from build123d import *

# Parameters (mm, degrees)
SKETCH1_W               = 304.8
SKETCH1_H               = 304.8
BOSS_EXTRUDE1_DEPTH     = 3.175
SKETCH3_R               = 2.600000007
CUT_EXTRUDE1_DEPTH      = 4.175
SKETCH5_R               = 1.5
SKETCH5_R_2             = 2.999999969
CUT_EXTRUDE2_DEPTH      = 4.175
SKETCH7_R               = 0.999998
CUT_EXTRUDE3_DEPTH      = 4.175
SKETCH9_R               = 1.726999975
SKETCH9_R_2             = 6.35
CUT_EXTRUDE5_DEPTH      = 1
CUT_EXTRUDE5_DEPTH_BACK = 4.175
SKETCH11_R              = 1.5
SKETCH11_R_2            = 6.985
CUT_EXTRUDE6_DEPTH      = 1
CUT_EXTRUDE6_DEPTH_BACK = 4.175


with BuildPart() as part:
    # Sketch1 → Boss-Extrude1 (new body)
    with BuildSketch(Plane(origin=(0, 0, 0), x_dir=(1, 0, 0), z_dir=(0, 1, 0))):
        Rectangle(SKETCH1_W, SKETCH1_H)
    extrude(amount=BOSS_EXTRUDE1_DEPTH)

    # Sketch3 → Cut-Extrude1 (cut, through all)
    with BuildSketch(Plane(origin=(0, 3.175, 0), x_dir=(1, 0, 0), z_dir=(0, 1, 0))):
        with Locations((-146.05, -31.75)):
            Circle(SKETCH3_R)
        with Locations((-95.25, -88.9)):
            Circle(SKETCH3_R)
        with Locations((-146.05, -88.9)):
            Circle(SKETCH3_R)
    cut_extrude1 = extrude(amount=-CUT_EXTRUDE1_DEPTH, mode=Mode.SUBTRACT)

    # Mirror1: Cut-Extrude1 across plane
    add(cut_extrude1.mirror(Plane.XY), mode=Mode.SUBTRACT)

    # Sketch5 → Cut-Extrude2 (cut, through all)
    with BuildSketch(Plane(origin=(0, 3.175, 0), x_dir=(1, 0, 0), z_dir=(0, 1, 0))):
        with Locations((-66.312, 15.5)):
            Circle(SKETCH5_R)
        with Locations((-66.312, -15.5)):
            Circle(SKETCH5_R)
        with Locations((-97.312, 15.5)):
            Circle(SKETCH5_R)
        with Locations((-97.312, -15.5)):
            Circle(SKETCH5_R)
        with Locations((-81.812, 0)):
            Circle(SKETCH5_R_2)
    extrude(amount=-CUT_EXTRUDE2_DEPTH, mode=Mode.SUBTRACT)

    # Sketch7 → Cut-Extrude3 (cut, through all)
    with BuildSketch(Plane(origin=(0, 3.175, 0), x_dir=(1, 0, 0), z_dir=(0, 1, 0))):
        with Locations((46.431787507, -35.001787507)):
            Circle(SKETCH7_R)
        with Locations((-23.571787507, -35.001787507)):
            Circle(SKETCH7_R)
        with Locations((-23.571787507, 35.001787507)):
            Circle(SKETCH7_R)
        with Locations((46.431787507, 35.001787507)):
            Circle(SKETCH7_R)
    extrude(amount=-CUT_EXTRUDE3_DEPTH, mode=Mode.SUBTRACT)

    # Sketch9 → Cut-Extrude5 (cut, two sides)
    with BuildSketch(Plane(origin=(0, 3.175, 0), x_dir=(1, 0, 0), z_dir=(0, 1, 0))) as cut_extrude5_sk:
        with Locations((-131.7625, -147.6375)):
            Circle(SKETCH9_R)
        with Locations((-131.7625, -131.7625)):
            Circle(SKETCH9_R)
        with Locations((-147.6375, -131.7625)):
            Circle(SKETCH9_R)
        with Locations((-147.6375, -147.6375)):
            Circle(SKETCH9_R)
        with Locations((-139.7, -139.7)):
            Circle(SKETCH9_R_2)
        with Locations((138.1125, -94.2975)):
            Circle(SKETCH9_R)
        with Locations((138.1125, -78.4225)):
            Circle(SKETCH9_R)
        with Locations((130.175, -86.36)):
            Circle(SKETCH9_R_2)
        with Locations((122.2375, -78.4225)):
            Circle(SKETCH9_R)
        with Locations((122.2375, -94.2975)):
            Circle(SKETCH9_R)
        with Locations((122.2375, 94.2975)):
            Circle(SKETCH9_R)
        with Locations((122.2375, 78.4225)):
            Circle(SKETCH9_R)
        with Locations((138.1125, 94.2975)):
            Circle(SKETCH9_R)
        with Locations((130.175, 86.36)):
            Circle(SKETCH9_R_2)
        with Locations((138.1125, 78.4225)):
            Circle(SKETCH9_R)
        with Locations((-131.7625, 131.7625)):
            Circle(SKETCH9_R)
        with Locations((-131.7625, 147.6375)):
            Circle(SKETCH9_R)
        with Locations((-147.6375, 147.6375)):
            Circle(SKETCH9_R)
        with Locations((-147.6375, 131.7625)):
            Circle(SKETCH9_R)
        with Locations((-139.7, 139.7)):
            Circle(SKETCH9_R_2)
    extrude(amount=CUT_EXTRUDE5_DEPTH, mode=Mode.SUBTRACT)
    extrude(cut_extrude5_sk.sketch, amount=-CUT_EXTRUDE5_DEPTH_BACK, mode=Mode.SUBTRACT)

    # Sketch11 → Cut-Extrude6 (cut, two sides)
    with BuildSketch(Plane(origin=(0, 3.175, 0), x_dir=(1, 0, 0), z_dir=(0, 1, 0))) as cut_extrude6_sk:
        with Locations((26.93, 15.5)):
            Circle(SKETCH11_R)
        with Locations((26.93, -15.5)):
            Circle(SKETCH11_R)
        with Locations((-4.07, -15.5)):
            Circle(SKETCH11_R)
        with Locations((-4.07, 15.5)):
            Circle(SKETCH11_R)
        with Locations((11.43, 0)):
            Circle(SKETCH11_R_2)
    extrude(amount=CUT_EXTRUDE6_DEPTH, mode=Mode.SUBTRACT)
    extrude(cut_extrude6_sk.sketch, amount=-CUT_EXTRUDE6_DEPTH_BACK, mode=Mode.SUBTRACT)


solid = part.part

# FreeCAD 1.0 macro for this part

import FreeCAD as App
import Part
import Sketcher
from FreeCAD import Vector

doc = App.newDocument("Part")
params = doc.addObject("Spreadsheet::Sheet", "Params")
for row, (alias, value) in enumerate([
    ("sketch1_width", "304.8 mm"),
    ("pad1_length", "3.175 mm"),
    ("sketch2_diameter", "5.2 mm"),
    ("sketch3_diameter", "3 mm"),
    ("sketch3_diameter2", "6 mm"),
    ("sketch5_diameter", "12.7 mm"),
    ("sketch6_diameter", "3 mm"),
    ("sketch6_diameter2", "13.97 mm"),
], start=1):
    params.set(f"A{row}", alias)
    params.set(f"B{row}", "=" + value)
    params.setAlias(f"B{row}", alias)

body = doc.addObject("PartDesign::Body", "Body")

# Sketch on XZ plane
sketch1 = doc.addObject("Sketcher::SketchObject", "Sketch")
body.addObject(sketch1)
sketch1.AttachmentSupport = (doc.XZ_Plane, [""])
sketch1.MapMode = "FlatFace"
sketch1.addGeometry(Part.LineSegment(Vector(-152, -152, 0), Vector(-152, 152, 0)), False)
sketch1.addGeometry(Part.LineSegment(Vector(-152, 152, 0), Vector(152, 152, 0)), False)
sketch1.addGeometry(Part.LineSegment(Vector(152, 152, 0), Vector(152, -152, 0)), False)
sketch1.addGeometry(Part.LineSegment(Vector(152, -152, 0), Vector(-152, -152, 0)), False)
sketch1.addConstraint(Sketcher.Constraint("Coincident", 0, 2, 1, 1))
sketch1.addConstraint(Sketcher.Constraint("Coincident", 1, 2, 2, 1))
sketch1.addConstraint(Sketcher.Constraint("Coincident", 2, 2, 3, 1))
sketch1.addConstraint(Sketcher.Constraint("Coincident", 3, 2, 0, 1))
sketch1.addConstraint(Sketcher.Constraint("Vertical", 0))
sketch1.addConstraint(Sketcher.Constraint("Horizontal", 1))
sketch1.addConstraint(Sketcher.Constraint("Vertical", 2))
sketch1.addConstraint(Sketcher.Constraint("Horizontal", 3))
sketch1.addConstraint(Sketcher.Constraint("Symmetric", 0, 2, 2, 2, -1, 1))
sketch1.addConstraint(Sketcher.Constraint("Equal", 3, 0))
sketch1.addConstraint(Sketcher.Constraint("DistanceX", 1, 1, 1, 2, 304.8))
sketch1.setExpression("Constraints[10]", "Params.sketch1_width")
pad1 = doc.addObject("PartDesign::Pad", "Pad")
body.addObject(pad1)
pad1.Profile = sketch1
pad1.setExpression("Length", "Params.pad1_length")
pad1.Reversed = True

# Sketch on XZ plane
sketch2 = doc.addObject("Sketcher::SketchObject", "Sketch001")
body.addObject(sketch2)
sketch2.AttachmentSupport = (doc.XZ_Plane, [""])
sketch2.MapMode = "FlatFace"
sketch2.AttachmentOffset = App.Placement(Vector(0, 0, -3.175), App.Rotation())
sketch2.addGeometry(Part.Circle(Vector(-146.1, 31.8, 0), Vector(0, 0, 1), 2.6), False)
sketch2.addGeometry(Part.Circle(Vector(-95.2, 88.9, 0), Vector(0, 0, 1), 2.6), False)
sketch2.addGeometry(Part.Circle(Vector(-146.1, 88.9, 0), Vector(0, 0, 1), 2.6), False)
sketch2.addConstraint(Sketcher.Constraint("Equal", 0, 1))
sketch2.addConstraint(Sketcher.Constraint("Equal", 1, 2))
sketch2.addConstraint(Sketcher.Constraint("Horizontal", 1, 3, 2, 3))
sketch2.addConstraint(Sketcher.Constraint("Vertical", 0, 3, 2, 3))
sketch2.addConstraint(Sketcher.Constraint("Diameter", 0, 5.2))
sketch2.addConstraint(Sketcher.Constraint("DistanceY", -1, 1, 1, 3, 88.9))
sketch2.addConstraint(Sketcher.Constraint("DistanceX", 0, 3, 1, 3, 50.8))
sketch2.addConstraint(Sketcher.Constraint("DistanceX", 0, 3, -1, 1, 146.05))
sketch2.addConstraint(Sketcher.Constraint("DistanceY", -1, 1, 0, 3, 31.75))
sketch2.setExpression("Constraints[4]", "Params.sketch2_diameter")
pocket1 = doc.addObject("PartDesign::Pocket", "Pocket")
body.addObject(pocket1)
pocket1.Profile = sketch2
pocket1.Type = "ThroughAll"
pocket1.Reversed = True
doc.recompute()

mirrored = doc.addObject("PartDesign::Mirrored", "Mirrored")
body.addObject(mirrored)
mirrored.Originals = [pocket1]
mirrored.MirrorPlane = (doc.XY_Plane, [""])
body.Tip = mirrored

# Sketch on XZ plane
sketch3 = doc.addObject("Sketcher::SketchObject", "Sketch002")
body.addObject(sketch3)
sketch3.AttachmentSupport = (doc.XZ_Plane, [""])
sketch3.MapMode = "FlatFace"
sketch3.AttachmentOffset = App.Placement(Vector(0, 0, -3.175), App.Rotation())
sketch3.addGeometry(Part.Circle(Vector(-66.3, -15.5, 0), Vector(0, 0, 1), 1.5), False)
sketch3.addGeometry(Part.Circle(Vector(-66.3, 15.5, 0), Vector(0, 0, 1), 1.5), False)
sketch3.addGeometry(Part.Circle(Vector(-97.3, -15.5, 0), Vector(0, 0, 1), 1.5), False)
sketch3.addGeometry(Part.Circle(Vector(-97.3, 15.5, 0), Vector(0, 0, 1), 1.5), False)
sketch3.addGeometry(Part.Circle(Vector(-81.8, 0, 0), Vector(0, 0, 1), 3), False)
sketch3.addConstraint(Sketcher.Constraint("Equal", 0, 1))
sketch3.addConstraint(Sketcher.Constraint("Equal", 1, 2))
sketch3.addConstraint(Sketcher.Constraint("Equal", 2, 3))
sketch3.addConstraint(Sketcher.Constraint("Symmetric", 0, 3, 1, 3, -1))
sketch3.addConstraint(Sketcher.Constraint("Symmetric", 2, 3, 3, 3, -1))
sketch3.addConstraint(Sketcher.Constraint("PointOnObject", 4, 3, -1))
sketch3.addConstraint(Sketcher.Constraint("Horizontal", 0, 3, 2, 3))
sketch3.addConstraint(Sketcher.Constraint("Diameter", 0, 3.0))
sketch3.addConstraint(Sketcher.Constraint("Diameter", 4, 6.0))
sketch3.addConstraint(Sketcher.Constraint("DistanceY", 0, 3, 1, 3, 31.0))
sketch3.addConstraint(Sketcher.Constraint("DistanceX", 2, 3, 0, 3, 31.0))
sketch3.addConstraint(Sketcher.Constraint("DistanceX", 4, 3, 0, 3, 15.5))
sketch3.addConstraint(Sketcher.Constraint("DistanceX", 0, 3, -1, 1, 66.312))
sketch3.setExpression("Constraints[7]", "Params.sketch3_diameter")
sketch3.setExpression("Constraints[8]", "Params.sketch3_diameter2")
pocket2 = doc.addObject("PartDesign::Pocket", "Pocket001")
body.addObject(pocket2)
pocket2.Profile = sketch3
pocket2.Type = "ThroughAll"
pocket2.Reversed = True

# Sketch on XZ plane
sketch4 = doc.addObject("Sketcher::SketchObject", "Sketch003")
body.addObject(sketch4)
sketch4.AttachmentSupport = (doc.XZ_Plane, [""])
sketch4.MapMode = "FlatFace"
sketch4.AttachmentOffset = App.Placement(Vector(0, 0, -3.175), App.Rotation())
sketch4.addGeometry(Part.Circle(Vector(46.4, 35, 0), Vector(0, 0, 1), 1), False)
sketch4.addGeometry(Part.Circle(Vector(-23.6, 35, 0), Vector(0, 0, 1), 1), False)
sketch4.addGeometry(Part.Circle(Vector(-23.6, -35, 0), Vector(0, 0, 1), 1), False)
sketch4.addGeometry(Part.Circle(Vector(46.4, -35, 0), Vector(0, 0, 1), 1), False)
sketch4.addConstraint(Sketcher.Constraint("Equal", 0, 1))
sketch4.addConstraint(Sketcher.Constraint("Equal", 1, 2))
sketch4.addConstraint(Sketcher.Constraint("Equal", 2, 3))
sketch4.addConstraint(Sketcher.Constraint("Symmetric", 1, 3, 2, 3, -1))
sketch4.addConstraint(Sketcher.Constraint("Symmetric", 0, 3, 3, 3, -1))
sketch4.addConstraint(Sketcher.Constraint("Horizontal", 0, 3, 1, 3))
sketch4.addConstraint(Sketcher.Constraint("Diameter", 0, 1.999996))
sketch4.addConstraint(Sketcher.Constraint("DistanceX", -1, 1, 0, 3, 46.431788))
sketch4.addConstraint(Sketcher.Constraint("DistanceY", -1, 1, 0, 3, 35.001788))
sketch4.addConstraint(Sketcher.Constraint("DistanceX", 1, 3, -1, 1, 23.571788))
pocket3 = doc.addObject("PartDesign::Pocket", "Pocket002")
body.addObject(pocket3)
pocket3.Profile = sketch4
pocket3.Type = "ThroughAll"
pocket3.Reversed = True

# Sketch on XZ plane
sketch5 = doc.addObject("Sketcher::SketchObject", "Sketch004")
body.addObject(sketch5)
sketch5.AttachmentSupport = (doc.XZ_Plane, [""])
sketch5.MapMode = "FlatFace"
sketch5.AttachmentOffset = App.Placement(Vector(0, 0, -3.175), App.Rotation())
sketch5.addGeometry(Part.Circle(Vector(-131.8, 147.6, 0), Vector(0, 0, 1), 1.7), False)
sketch5.addGeometry(Part.Circle(Vector(-131.8, 131.8, 0), Vector(0, 0, 1), 1.7), False)
sketch5.addGeometry(Part.Circle(Vector(-147.6, 131.8, 0), Vector(0, 0, 1), 1.7), False)
sketch5.addGeometry(Part.Circle(Vector(-147.6, 147.6, 0), Vector(0, 0, 1), 1.7), False)
sketch5.addGeometry(Part.Circle(Vector(-139.7, 139.7, 0), Vector(0, 0, 1), 6.3), False)
sketch5.addGeometry(Part.Circle(Vector(138.1, 94.3, 0), Vector(0, 0, 1), 1.7), False)
sketch5.addGeometry(Part.Circle(Vector(138.1, 78.4, 0), Vector(0, 0, 1), 1.7), False)
sketch5.addGeometry(Part.Circle(Vector(130.2, 86.4, 0), Vector(0, 0, 1), 6.3), False)
sketch5.addGeometry(Part.Circle(Vector(122.2, 78.4, 0), Vector(0, 0, 1), 1.7), False)
sketch5.addGeometry(Part.Circle(Vector(122.2, 94.3, 0), Vector(0, 0, 1), 1.7), False)
sketch5.addGeometry(Part.Circle(Vector(122.2, -94.3, 0), Vector(0, 0, 1), 1.7), False)
sketch5.addGeometry(Part.Circle(Vector(122.2, -78.4, 0), Vector(0, 0, 1), 1.7), False)
sketch5.addGeometry(Part.Circle(Vector(138.1, -94.3, 0), Vector(0, 0, 1), 1.7), False)
sketch5.addGeometry(Part.Circle(Vector(130.2, -86.4, 0), Vector(0, 0, 1), 6.3), False)
sketch5.addGeometry(Part.Circle(Vector(138.1, -78.4, 0), Vector(0, 0, 1), 1.7), False)
sketch5.addGeometry(Part.Circle(Vector(-131.8, -131.8, 0), Vector(0, 0, 1), 1.7), False)
sketch5.addGeometry(Part.Circle(Vector(-131.8, -147.6, 0), Vector(0, 0, 1), 1.7), False)
sketch5.addGeometry(Part.Circle(Vector(-147.6, -147.6, 0), Vector(0, 0, 1), 1.7), False)
sketch5.addGeometry(Part.Circle(Vector(-147.6, -131.8, 0), Vector(0, 0, 1), 1.7), False)
sketch5.addGeometry(Part.Circle(Vector(-139.7, -139.7, 0), Vector(0, 0, 1), 6.3), False)
sketch5.addConstraint(Sketcher.Constraint("Equal", 0, 1))
sketch5.addConstraint(Sketcher.Constraint("Equal", 1, 2))
sketch5.addConstraint(Sketcher.Constraint("Equal", 2, 3))
sketch5.addConstraint(Sketcher.Constraint("Equal", 3, 5))
sketch5.addConstraint(Sketcher.Constraint("Equal", 5, 6))
sketch5.addConstraint(Sketcher.Constraint("Equal", 4, 7))
sketch5.addConstraint(Sketcher.Constraint("Equal", 6, 8))
sketch5.addConstraint(Sketcher.Constraint("Equal", 8, 9))
sketch5.addConstraint(Sketcher.Constraint("Equal", 9, 10))
sketch5.addConstraint(Sketcher.Constraint("Equal", 10, 11))
sketch5.addConstraint(Sketcher.Constraint("Equal", 11, 12))
sketch5.addConstraint(Sketcher.Constraint("Equal", 7, 13))
sketch5.addConstraint(Sketcher.Constraint("Equal", 12, 14))
sketch5.addConstraint(Sketcher.Constraint("Equal", 14, 15))
sketch5.addConstraint(Sketcher.Constraint("Equal", 15, 16))
sketch5.addConstraint(Sketcher.Constraint("Equal", 16, 17))
sketch5.addConstraint(Sketcher.Constraint("Equal", 17, 18))
sketch5.addConstraint(Sketcher.Constraint("Equal", 13, 19))
sketch5.addConstraint(Sketcher.Constraint("Symmetric", 9, 3, 10, 3, -1))
sketch5.addConstraint(Sketcher.Constraint("Symmetric", 8, 3, 11, 3, -1))
sketch5.addConstraint(Sketcher.Constraint("Symmetric", 5, 3, 12, 3, -1))
sketch5.addConstraint(Sketcher.Constraint("Symmetric", 7, 3, 13, 3, -1))
sketch5.addConstraint(Sketcher.Constraint("Symmetric", 6, 3, 14, 3, -1))
sketch5.addConstraint(Sketcher.Constraint("Symmetric", 1, 3, 15, 3, -1))
sketch5.addConstraint(Sketcher.Constraint("Symmetric", 0, 3, 16, 3, -1))
sketch5.addConstraint(Sketcher.Constraint("Symmetric", 3, 3, 17, 3, -1))
sketch5.addConstraint(Sketcher.Constraint("Symmetric", 2, 3, 18, 3, -1))
sketch5.addConstraint(Sketcher.Constraint("Symmetric", 4, 3, 19, 3, -1))
sketch5.addConstraint(Sketcher.Constraint("Horizontal", 1, 3, 2, 3))
sketch5.addConstraint(Sketcher.Constraint("Horizontal", 0, 3, 3, 3))
sketch5.addConstraint(Sketcher.Constraint("Horizontal", 6, 3, 8, 3))
sketch5.addConstraint(Sketcher.Constraint("Horizontal", 5, 3, 9, 3))
sketch5.addConstraint(Sketcher.Constraint("Vertical", 0, 3, 1, 3))
sketch5.addConstraint(Sketcher.Constraint("Vertical", 2, 3, 3, 3))
sketch5.addConstraint(Sketcher.Constraint("Vertical", 5, 3, 6, 3))
sketch5.addConstraint(Sketcher.Constraint("Vertical", 8, 3, 9, 3))
sketch5.addConstraint(Sketcher.Constraint("Diameter", 4, 12.7))
sketch5.addConstraint(Sketcher.Constraint("Diameter", 0, 3.454))
sketch5.addConstraint(Sketcher.Constraint("DistanceX", 1, 3, 8, 3, 254.0))
sketch5.addConstraint(Sketcher.Constraint("DistanceX", 4, 3, -1, 1, 139.7))
sketch5.addConstraint(Sketcher.Constraint("DistanceY", -1, 1, 4, 3, 139.7))
sketch5.addConstraint(Sketcher.Constraint("DistanceY", 17, 3, 2, 3, 279.4))
sketch5.addConstraint(Sketcher.Constraint("DistanceY", -1, 1, 7, 3, 86.36))
sketch5.addConstraint(Sketcher.Constraint("DistanceY", 5, 3, 0, 3, 53.34))
sketch5.addConstraint(Sketcher.Constraint("DistanceX", 2, 3, 5, 3, 285.75))
sketch5.addConstraint(Sketcher.Constraint("DistanceY", 6, 3, 1, 3, 53.34))
sketch5.addConstraint(Sketcher.Constraint("DistanceX", -1, 1, 7, 3, 130.175))
sketch5.addConstraint(Sketcher.Constraint("DistanceY", 1, 3, 0, 3, 15.875))
sketch5.addConstraint(Sketcher.Constraint("DistanceX", 2, 3, 1, 3, 15.875))
sketch5.addConstraint(Sketcher.Constraint("DistanceX", 0, 3, -1, 1, 131.7625))
sketch5.setExpression("Constraints[36]", "Params.sketch5_diameter")
pocket4 = doc.addObject("PartDesign::Pocket", "Pocket003")
body.addObject(pocket4)
pocket4.Profile = sketch5
pocket4.Type = "ThroughAll"
pocket4.Midplane = True

# Sketch on XZ plane
sketch6 = doc.addObject("Sketcher::SketchObject", "Sketch005")
body.addObject(sketch6)
sketch6.AttachmentSupport = (doc.XZ_Plane, [""])
sketch6.MapMode = "FlatFace"
sketch6.AttachmentOffset = App.Placement(Vector(0, 0, -3.175), App.Rotation())
sketch6.addGeometry(Part.Circle(Vector(26.9, -15.5, 0), Vector(0, 0, 1), 1.5), False)
sketch6.addGeometry(Part.Circle(Vector(26.9, 15.5, 0), Vector(0, 0, 1), 1.5), False)
sketch6.addGeometry(Part.Circle(Vector(-4.1, 15.5, 0), Vector(0, 0, 1), 1.5), False)
sketch6.addGeometry(Part.Circle(Vector(-4.1, -15.5, 0), Vector(0, 0, 1), 1.5), False)
sketch6.addGeometry(Part.Circle(Vector(11.4, 0, 0), Vector(0, 0, 1), 7), False)
sketch6.addConstraint(Sketcher.Constraint("Equal", 0, 1))
sketch6.addConstraint(Sketcher.Constraint("Equal", 1, 2))
sketch6.addConstraint(Sketcher.Constraint("Equal", 2, 3))
sketch6.addConstraint(Sketcher.Constraint("Symmetric", 0, 3, 1, 3, -1))
sketch6.addConstraint(Sketcher.Constraint("Symmetric", 2, 3, 3, 3, -1))
sketch6.addConstraint(Sketcher.Constraint("PointOnObject", 4, 3, -1))
sketch6.addConstraint(Sketcher.Constraint("Horizontal", 1, 3, 2, 3))
sketch6.addConstraint(Sketcher.Constraint("Diameter", 0, 3.0))
sketch6.addConstraint(Sketcher.Constraint("Diameter", 4, 13.97))
sketch6.addConstraint(Sketcher.Constraint("DistanceY", 0, 3, 1, 3, 31.0))
sketch6.addConstraint(Sketcher.Constraint("DistanceX", 2, 3, 1, 3, 31.0))
sketch6.addConstraint(Sketcher.Constraint("DistanceX", 4, 3, 0, 3, 15.5))
sketch6.addConstraint(Sketcher.Constraint("DistanceX", -1, 1, 0, 3, 26.93))
sketch6.setExpression("Constraints[7]", "Params.sketch6_diameter")
sketch6.setExpression("Constraints[8]", "Params.sketch6_diameter2")
pocket5 = doc.addObject("PartDesign::Pocket", "Pocket004")
body.addObject(pocket5)
pocket5.Profile = sketch6
pocket5.Type = "ThroughAll"
pocket5.Midplane = True

doc.recompute()
